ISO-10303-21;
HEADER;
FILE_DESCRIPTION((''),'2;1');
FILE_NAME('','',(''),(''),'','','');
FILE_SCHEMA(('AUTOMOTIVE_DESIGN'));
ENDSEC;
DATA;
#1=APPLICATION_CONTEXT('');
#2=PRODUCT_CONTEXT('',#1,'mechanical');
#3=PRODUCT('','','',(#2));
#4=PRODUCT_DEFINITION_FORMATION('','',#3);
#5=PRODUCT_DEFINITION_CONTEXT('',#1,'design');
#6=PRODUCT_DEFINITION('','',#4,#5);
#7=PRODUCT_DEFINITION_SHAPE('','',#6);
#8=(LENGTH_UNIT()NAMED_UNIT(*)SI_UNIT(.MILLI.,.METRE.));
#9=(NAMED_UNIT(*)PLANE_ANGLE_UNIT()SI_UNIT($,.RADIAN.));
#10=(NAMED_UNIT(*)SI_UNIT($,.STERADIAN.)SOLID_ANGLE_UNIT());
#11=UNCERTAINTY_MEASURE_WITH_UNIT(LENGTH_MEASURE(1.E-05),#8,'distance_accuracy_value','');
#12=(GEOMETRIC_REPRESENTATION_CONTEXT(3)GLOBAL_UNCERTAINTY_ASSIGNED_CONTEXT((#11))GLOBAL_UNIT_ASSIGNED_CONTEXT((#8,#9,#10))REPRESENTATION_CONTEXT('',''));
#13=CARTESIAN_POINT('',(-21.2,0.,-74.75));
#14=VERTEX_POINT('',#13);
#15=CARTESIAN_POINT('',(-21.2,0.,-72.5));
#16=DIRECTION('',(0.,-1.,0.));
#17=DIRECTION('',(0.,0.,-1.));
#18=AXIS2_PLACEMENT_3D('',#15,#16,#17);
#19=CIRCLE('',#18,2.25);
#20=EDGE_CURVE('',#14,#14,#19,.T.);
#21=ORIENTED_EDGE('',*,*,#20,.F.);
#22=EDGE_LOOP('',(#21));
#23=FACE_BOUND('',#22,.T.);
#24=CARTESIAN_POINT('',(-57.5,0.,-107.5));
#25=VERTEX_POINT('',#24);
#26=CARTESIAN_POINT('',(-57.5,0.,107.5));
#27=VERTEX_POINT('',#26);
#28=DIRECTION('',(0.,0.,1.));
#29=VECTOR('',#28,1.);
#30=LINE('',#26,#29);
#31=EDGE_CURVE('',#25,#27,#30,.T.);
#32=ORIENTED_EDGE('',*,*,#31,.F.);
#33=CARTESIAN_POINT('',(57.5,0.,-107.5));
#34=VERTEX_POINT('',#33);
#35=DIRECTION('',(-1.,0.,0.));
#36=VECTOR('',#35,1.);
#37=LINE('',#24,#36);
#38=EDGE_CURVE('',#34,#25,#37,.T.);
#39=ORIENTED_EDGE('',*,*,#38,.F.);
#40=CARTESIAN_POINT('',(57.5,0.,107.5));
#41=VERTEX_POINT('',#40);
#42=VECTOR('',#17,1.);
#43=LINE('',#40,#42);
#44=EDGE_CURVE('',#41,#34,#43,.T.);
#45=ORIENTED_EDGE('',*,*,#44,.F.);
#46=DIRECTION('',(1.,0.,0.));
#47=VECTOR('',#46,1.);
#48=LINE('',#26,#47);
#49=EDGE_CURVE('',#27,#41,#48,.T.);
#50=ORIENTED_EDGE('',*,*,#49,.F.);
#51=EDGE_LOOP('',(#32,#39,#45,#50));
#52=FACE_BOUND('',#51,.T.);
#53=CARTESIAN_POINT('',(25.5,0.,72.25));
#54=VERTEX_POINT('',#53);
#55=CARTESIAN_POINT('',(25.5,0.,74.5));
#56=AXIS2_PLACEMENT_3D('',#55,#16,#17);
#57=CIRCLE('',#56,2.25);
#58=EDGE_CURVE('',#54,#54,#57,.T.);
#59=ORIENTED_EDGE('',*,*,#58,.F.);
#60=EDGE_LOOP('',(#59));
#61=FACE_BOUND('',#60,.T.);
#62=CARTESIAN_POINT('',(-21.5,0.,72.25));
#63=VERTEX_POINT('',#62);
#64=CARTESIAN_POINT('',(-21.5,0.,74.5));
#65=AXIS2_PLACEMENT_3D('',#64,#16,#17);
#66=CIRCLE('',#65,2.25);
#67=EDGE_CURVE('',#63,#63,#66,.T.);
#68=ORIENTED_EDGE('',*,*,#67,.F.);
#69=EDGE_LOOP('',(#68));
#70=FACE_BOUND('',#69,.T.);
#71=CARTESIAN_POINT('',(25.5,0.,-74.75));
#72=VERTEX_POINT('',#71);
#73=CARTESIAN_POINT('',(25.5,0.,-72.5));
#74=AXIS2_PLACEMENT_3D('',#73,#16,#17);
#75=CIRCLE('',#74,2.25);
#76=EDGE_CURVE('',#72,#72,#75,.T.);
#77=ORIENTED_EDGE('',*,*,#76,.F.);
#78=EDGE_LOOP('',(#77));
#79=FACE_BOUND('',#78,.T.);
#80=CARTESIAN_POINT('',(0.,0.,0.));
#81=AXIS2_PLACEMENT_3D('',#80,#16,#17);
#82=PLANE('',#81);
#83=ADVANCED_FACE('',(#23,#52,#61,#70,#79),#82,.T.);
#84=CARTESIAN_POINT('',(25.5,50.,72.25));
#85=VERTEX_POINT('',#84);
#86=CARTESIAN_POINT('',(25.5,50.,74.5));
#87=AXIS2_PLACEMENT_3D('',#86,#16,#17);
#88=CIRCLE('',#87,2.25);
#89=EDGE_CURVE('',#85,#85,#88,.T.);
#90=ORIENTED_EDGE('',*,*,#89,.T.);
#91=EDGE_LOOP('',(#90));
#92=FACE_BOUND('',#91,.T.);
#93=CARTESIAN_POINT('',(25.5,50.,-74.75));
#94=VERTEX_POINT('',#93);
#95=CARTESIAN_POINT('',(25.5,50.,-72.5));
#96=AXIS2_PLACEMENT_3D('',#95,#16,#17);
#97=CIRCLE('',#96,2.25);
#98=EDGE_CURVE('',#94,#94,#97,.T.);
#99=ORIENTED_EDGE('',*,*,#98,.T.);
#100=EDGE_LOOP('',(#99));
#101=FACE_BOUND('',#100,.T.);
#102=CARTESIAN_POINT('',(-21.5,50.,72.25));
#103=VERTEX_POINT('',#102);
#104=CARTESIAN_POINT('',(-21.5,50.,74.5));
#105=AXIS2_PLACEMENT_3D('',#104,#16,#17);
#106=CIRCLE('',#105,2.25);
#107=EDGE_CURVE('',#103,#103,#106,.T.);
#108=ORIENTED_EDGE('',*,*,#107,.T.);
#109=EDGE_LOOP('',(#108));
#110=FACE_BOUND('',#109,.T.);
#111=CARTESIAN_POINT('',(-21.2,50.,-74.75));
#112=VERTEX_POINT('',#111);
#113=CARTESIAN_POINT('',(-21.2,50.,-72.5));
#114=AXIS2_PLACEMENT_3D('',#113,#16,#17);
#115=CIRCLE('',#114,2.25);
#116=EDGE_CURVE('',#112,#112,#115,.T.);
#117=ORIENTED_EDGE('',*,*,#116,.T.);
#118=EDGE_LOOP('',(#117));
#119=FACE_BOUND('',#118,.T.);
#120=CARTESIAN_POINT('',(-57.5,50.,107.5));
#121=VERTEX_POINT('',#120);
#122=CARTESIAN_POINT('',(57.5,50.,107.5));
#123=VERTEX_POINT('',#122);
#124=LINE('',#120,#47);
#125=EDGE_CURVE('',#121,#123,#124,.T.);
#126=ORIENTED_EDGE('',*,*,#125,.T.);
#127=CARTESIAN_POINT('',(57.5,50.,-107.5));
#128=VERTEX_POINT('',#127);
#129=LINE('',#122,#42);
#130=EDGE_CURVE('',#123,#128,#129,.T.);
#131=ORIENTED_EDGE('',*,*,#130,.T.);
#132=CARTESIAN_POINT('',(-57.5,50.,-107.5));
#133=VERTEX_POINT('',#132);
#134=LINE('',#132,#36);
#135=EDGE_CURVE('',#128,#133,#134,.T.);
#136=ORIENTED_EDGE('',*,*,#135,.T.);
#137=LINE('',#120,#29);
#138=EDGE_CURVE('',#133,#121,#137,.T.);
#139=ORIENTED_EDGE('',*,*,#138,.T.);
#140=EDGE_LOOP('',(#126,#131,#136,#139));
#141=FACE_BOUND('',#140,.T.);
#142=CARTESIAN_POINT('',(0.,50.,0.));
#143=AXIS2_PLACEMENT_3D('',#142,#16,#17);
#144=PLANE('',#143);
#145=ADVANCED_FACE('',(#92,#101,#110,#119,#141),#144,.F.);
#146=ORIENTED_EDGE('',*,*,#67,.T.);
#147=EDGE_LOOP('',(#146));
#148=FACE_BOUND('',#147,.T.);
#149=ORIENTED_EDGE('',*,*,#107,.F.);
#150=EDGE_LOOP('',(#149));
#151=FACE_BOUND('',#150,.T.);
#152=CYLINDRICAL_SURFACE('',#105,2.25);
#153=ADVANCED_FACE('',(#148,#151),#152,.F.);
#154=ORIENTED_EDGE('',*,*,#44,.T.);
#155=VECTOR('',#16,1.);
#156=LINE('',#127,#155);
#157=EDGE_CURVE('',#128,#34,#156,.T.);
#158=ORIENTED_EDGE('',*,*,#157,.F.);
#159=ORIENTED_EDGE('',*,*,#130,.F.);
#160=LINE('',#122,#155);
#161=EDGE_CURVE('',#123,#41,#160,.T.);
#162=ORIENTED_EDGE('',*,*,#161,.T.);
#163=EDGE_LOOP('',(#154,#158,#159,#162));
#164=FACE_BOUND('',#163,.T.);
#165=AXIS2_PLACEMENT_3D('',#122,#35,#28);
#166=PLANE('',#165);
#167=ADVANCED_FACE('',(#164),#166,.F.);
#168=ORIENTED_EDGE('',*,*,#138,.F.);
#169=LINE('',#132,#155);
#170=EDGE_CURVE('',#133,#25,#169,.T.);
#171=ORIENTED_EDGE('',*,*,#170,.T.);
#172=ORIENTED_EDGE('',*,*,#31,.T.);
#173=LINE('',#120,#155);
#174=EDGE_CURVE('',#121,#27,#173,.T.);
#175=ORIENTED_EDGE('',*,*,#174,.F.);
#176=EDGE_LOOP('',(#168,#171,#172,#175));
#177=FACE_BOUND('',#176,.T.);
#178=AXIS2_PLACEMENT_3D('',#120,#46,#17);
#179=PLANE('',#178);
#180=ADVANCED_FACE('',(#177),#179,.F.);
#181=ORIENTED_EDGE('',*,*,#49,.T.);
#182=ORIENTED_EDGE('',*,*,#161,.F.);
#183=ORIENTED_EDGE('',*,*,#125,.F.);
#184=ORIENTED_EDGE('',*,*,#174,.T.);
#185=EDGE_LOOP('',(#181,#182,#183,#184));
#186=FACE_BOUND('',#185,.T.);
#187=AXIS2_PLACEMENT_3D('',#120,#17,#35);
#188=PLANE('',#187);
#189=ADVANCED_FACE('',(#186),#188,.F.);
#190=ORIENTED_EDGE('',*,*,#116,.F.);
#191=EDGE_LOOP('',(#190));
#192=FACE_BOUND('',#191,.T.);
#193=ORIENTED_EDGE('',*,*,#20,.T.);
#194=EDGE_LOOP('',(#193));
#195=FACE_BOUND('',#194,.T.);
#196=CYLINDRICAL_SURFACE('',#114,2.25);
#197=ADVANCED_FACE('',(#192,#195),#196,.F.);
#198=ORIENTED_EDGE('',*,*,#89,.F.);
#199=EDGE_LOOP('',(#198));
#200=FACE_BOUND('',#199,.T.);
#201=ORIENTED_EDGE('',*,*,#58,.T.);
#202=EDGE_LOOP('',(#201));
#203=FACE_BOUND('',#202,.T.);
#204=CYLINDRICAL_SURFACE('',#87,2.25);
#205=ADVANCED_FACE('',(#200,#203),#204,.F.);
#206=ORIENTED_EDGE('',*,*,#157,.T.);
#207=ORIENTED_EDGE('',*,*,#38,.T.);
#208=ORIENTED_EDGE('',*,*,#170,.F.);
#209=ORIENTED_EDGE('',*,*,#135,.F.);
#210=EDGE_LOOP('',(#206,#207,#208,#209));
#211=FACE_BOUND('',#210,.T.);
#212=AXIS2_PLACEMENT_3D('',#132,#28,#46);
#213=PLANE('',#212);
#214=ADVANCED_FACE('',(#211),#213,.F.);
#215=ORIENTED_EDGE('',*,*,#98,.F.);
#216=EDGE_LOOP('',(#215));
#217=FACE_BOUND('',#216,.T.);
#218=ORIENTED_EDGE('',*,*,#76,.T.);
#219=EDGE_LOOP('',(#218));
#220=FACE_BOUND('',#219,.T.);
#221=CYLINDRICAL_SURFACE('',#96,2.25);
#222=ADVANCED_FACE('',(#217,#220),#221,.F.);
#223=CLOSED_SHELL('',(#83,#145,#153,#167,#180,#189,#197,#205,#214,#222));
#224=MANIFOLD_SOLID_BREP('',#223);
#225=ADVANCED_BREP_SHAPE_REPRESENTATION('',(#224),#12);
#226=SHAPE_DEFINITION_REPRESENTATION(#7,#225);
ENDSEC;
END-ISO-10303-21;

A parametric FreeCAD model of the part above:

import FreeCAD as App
import Part
import Sketcher
Q = App.Units.Quantity


def add_polygon(sketch, points):
    """Adds a closed chain of lines whose ends are joined by coincident constraints."""
    first, n = sketch.GeometryCount, len(points)
    for a, b in zip(points, points[1:] + points[:1]):
        sketch.addGeometry(Part.LineSegment(App.Vector(*a, 0), App.Vector(*b, 0)), False)
    for i in range(n):
        sketch.addConstraint(Sketcher.Constraint("Coincident", first + i, 2, first + (i + 1) % n, 1))

doc = App.newDocument("Part")
body = doc.addObject("PartDesign::Body", "Body")

# Sketch on XZ plane
sketch1 = body.newObject("Sketcher::SketchObject", "Sketch")
sketch1.AttachmentSupport = (doc.getObject("XZ_Plane"), [""])
sketch1.MapMode = "FlatFace"
add_polygon(sketch1, [(-57.5, -107.5), (-57.5, 107.5), (57.5, 107.5), (57.5, -107.5)])  # lines 0-3
sketch1.addConstraint([
    Sketcher.Constraint("Vertical", 0),
    Sketcher.Constraint("Horizontal", 1),
    Sketcher.Constraint("Vertical", 2),
    Sketcher.Constraint("Horizontal", 3),
    Sketcher.Constraint("Symmetric", 0, 2, 2, 2, -1, 1),
    Sketcher.Constraint("DistanceX", 1, 1, 1, 2, Q("115 mm")),
    Sketcher.Constraint("DistanceY", 0, 1, 0, 2, Q("215 mm")),
])
pad1 = body.newObject("PartDesign::Pad", "Pad")
pad1.Profile = sketch1
pad1.Length = 50
pad1.Reversed = True

# Sketch on XZ plane
sketch2 = body.newObject("Sketcher::SketchObject", "Sketch001")
sketch2.AttachmentSupport = (doc.getObject("XZ_Plane"), [""])
sketch2.MapMode = "FlatFace"
sketch2.addGeometry([
    Part.Circle(App.Vector(25.5, 74.5, 0), App.Vector(0, 0, 1), 2.25),
    Part.Circle(App.Vector(-21.5, 74.5, 0), App.Vector(0, 0, 1), 2.25),
    Part.Circle(App.Vector(25.5, -72.5, 0), App.Vector(0, 0, 1), 2.25),
    Part.Circle(App.Vector(-21.2, -72.5, 0), App.Vector(0, 0, 1), 2.25),
], False)
sketch2.addConstraint([
    Sketcher.Constraint("Equal", 0, 1),
    Sketcher.Constraint("Equal", 1, 2),
    Sketcher.Constraint("Equal", 2, 3),
    Sketcher.Constraint("Horizontal", 0, 3, 1, 3),
    Sketcher.Constraint("Horizontal", 2, 3, 3, 3),
    Sketcher.Constraint("Vertical", 0, 3, 2, 3),
    Sketcher.Constraint("Diameter", 0, Q("4.5 mm")),
    Sketcher.Constraint("DistanceX", 1, 3, 0, 3, Q("47 mm")),
    Sketcher.Constraint("DistanceY", 2, 3, 0, 3, Q("147 mm")),
    Sketcher.Constraint("DistanceX", -1, 1, 0, 3, Q("25.5 mm")),
    Sketcher.Constraint("DistanceY", -1, 1, 0, 3, Q("74.5 mm")),
    Sketcher.Constraint("DistanceX", 3, 3, -1, 1, Q("21.2 mm")),
])
pocket1 = body.newObject("PartDesign::Pocket", "Pocket")
pocket1.Profile = sketch2
pocket1.Type = "ThroughAll"

doc.recompute()
